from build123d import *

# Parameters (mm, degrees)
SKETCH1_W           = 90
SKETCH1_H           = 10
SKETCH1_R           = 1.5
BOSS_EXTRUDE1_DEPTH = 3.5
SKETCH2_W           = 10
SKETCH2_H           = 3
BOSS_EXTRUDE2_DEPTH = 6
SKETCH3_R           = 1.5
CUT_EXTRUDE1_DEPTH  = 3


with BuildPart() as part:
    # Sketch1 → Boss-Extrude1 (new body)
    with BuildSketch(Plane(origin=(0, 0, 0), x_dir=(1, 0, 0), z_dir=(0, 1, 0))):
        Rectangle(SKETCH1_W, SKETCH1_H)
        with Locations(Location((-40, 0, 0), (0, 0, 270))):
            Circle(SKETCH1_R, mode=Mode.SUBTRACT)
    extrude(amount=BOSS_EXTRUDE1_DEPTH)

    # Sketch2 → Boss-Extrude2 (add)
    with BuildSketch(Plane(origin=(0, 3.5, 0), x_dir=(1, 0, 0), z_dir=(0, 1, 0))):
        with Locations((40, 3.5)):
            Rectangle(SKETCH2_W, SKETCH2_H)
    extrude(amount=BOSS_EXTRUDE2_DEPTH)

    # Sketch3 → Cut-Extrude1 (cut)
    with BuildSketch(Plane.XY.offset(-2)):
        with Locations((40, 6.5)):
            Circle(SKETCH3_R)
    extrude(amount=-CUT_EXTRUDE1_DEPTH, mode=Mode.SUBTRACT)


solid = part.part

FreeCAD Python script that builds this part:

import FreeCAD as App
import Part
import Sketcher
from FreeCAD import Vector
Q = App.Units.Quantity

doc = App.newDocument("Part")
body = doc.addObject("PartDesign::Body", "Body")

# Sketch on XZ plane
sketch1 = doc.addObject("Sketcher::SketchObject", "Sketch")
body.addObject(sketch1)
sketch1.AttachmentSupport = (doc.XZ_Plane, [""])
sketch1.MapMode = "FlatFace"
sketch1.addGeometry([
    Part.LineSegment(Vector(-45, -5, 0), Vector(-45, 5, 0)),  # 0
    Part.LineSegment(Vector(-45, 5, 0), Vector(45, 5, 0)),  # 1
    Part.LineSegment(Vector(45, 5, 0), Vector(45, -5, 0)),  # 2
    Part.LineSegment(Vector(45, -5, 0), Vector(-45, -5, 0)),  # 3
    Part.Circle(Vector(-40, 0, 0), Vector(0, 0, 1), 1.5),  # 4
], False)
sketch1.addConstraint([
    Sketcher.Constraint("Coincident", 0, 2, 1, 1),
    Sketcher.Constraint("Coincident", 1, 2, 2, 1),
    Sketcher.Constraint("Coincident", 2, 2, 3, 1),
    Sketcher.Constraint("Coincident", 3, 2, 0, 1),
    Sketcher.Constraint("Vertical", 0),
    Sketcher.Constraint("Horizontal", 1),
    Sketcher.Constraint("Vertical", 2),
    Sketcher.Constraint("Horizontal", 3),
    Sketcher.Constraint("Symmetric", 0, 2, 2, 2, -1, 1),
    Sketcher.Constraint("PointOnObject", 4, 3, -1),
    Sketcher.Constraint("Diameter", 4, Q("3 mm")),
    Sketcher.Constraint("DistanceX", 1, 1, 1, 2, Q("90 mm")),
    Sketcher.Constraint("DistanceY", 0, 1, 0, 2, Q("10 mm")),
    Sketcher.Constraint("DistanceX", 4, 3, -1, 1, Q("40 mm")),
])
pad1 = doc.addObject("PartDesign::Pad", "Pad")
body.addObject(pad1)
pad1.Profile = sketch1
pad1.Length = 3.5
pad1.Reversed = True

# Sketch on XZ plane
sketch2 = doc.addObject("Sketcher::SketchObject", "Sketch001")
body.addObject(sketch2)
sketch2.AttachmentSupport = (doc.XZ_Plane, [""])
sketch2.MapMode = "FlatFace"
sketch2.AttachmentOffset = App.Placement(Vector(0, 0, -3.5), App.Rotation())
sketch2.addGeometry([
    Part.LineSegment(Vector(35, -5, 0), Vector(35, -2, 0)),
    Part.LineSegment(Vector(35, -2, 0), Vector(45, -2, 0)),
    Part.LineSegment(Vector(45, -2, 0), Vector(45, -5, 0)),
    Part.LineSegment(Vector(45, -5, 0), Vector(35, -5, 0)),
], False)
sketch2.addConstraint([
    Sketcher.Constraint("Coincident", 0, 2, 1, 1),
    Sketcher.Constraint("Coincident", 1, 2, 2, 1),
    Sketcher.Constraint("Coincident", 2, 2, 3, 1),
    Sketcher.Constraint("Coincident", 3, 2, 0, 1),
    Sketcher.Constraint("Vertical", 0),
    Sketcher.Constraint("Horizontal", 1),
    Sketcher.Constraint("Vertical", 2),
    Sketcher.Constraint("Horizontal", 3),
    Sketcher.Constraint("DistanceX", 1, 1, 1, 2, Q("10 mm")),
    Sketcher.Constraint("DistanceY", 0, 1, 0, 2, Q("3 mm")),
    Sketcher.Constraint("DistanceX", -1, 1, 0, 2, Q("35 mm")),
    Sketcher.Constraint("DistanceY", 0, 2, -1, 1, Q("2 mm")),
])
pad2 = doc.addObject("PartDesign::Pad", "Pad001")
body.addObject(pad2)
pad2.Profile = sketch2
pad2.Length = 6
pad2.Reversed = True

# Sketch on XY plane
sketch3 = doc.addObject("Sketcher::SketchObject", "Sketch002")
body.addObject(sketch3)
sketch3.AttachmentSupport = (doc.XY_Plane, [""])
sketch3.MapMode = "FlatFace"
sketch3.AttachmentOffset = App.Placement(Vector(0, 0, -2), App.Rotation())
sketch3.addGeometry(Part.Circle(Vector(40, 6.5, 0), Vector(0, 0, 1), 1.5), False)
sketch3.addConstraint([
    Sketcher.Constraint("Diameter", 0, Q("3 mm")),
    Sketcher.Constraint("DistanceX", -1, 1, 0, 3, Q("40 mm")),
    Sketcher.Constraint("DistanceY", -1, 1, 0, 3, Q("6.5 mm")),
])
pocket1 = doc.addObject("PartDesign::Pocket", "Pocket")
body.addObject(pocket1)
pocket1.Profile = sketch3
pocket1.Length = 3

doc.recompute()
